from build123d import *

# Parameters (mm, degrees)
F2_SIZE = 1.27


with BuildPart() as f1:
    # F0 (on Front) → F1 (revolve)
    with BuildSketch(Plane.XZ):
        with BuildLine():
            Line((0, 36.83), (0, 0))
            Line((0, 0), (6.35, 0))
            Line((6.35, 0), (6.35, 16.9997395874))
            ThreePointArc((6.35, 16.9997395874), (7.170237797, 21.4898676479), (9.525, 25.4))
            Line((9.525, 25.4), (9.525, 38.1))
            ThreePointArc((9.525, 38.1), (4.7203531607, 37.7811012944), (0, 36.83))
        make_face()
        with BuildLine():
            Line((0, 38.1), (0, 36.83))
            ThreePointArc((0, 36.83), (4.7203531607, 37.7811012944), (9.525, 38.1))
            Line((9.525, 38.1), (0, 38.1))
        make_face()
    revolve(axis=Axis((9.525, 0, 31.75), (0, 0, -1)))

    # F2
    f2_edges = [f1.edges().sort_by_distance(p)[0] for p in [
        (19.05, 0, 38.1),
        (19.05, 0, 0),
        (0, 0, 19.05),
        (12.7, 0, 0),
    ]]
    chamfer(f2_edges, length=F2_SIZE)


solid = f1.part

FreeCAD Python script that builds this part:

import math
import FreeCAD as App
import Part
import Sketcher

V = App.Vector
Q = App.Units.Quantity


def edges_at(feature, points):
    """Names of the edges that pass closest to the given points."""
    edges = feature.Shape.Edges
    near = lambda p: min(range(len(edges)), key=lambda i: edges[i].distToShape(Part.Vertex(*p))[0])
    return sorted({f"Edge{near(p) + 1}" for p in points})

doc = App.newDocument("Part")
body = doc.addObject("PartDesign::Body", "Body")

# Sketch on XZ plane
sketch1 = body.newObject("Sketcher::SketchObject", "Sketch")
sketch1.AttachmentSupport = (doc.getObject("XZ_Plane"), [""])
sketch1.MapMode = "FlatFace"
sketch1.addGeometry([
    Part.LineSegment(V(0, 0, 0), V(6, 0, 0)),  # 0
    Part.LineSegment(V(6, 0, 0), V(6, 17, 0)),  # 1
    Part.ArcOfCircle(Part.Circle(V(19, 17, 0), V(0, 0, 1), 13), math.radians(139), math.radians(180)),  # 2
    Part.LineSegment(V(10, 25, 0), V(10, 38, 0)),  # 3
    Part.LineSegment(V(10, 38, 0), V(0, 38, 0)),  # 4
    Part.LineSegment(V(0, 38, 0), V(0, 0, 0)),  # 5
], False)
sketch1.addGeometry(Part.LineSegment(V(10, 38, 0), V(10, 0, 0)), True)  # axis
sketch1.addConstraint([
    Sketcher.Constraint("Coincident", 0, 2, 1, 1),
    Sketcher.Constraint("Tangent", 1, 2, 2, 2),
    Sketcher.Constraint("Coincident", 2, 1, 3, 1),
    Sketcher.Constraint("Coincident", 3, 2, 4, 1),
    Sketcher.Constraint("Coincident", 4, 2, 5, 1),
    Sketcher.Constraint("Coincident", 5, 2, 0, 1),
    Sketcher.Constraint("Horizontal", 0),
    Sketcher.Constraint("Vertical", 1),
    Sketcher.Constraint("Vertical", 3),
    Sketcher.Constraint("Horizontal", 4),
    Sketcher.Constraint("Vertical", 5),
    Sketcher.Constraint("Vertical", 6),
    Sketcher.Constraint("Coincident", 5, 2, -1, 1),
    Sketcher.Constraint("Coincident", 6, 1, 3, 2),
    Sketcher.Constraint("PointOnObject", 6, 2, -1),
    Sketcher.Constraint("Radius", 2, Q("0.5 in")),
    Sketcher.Constraint("DistanceY", 3, 1, 3, 2, Q("0.5 in")),
    Sketcher.Constraint("DistanceY", 5, 2, 5, 1, Q("1.5 in")),
    Sketcher.Constraint("DistanceX", 0, 1, 0, 2, Q("0.25 in")),
    Sketcher.Constraint("DistanceX", 4, 2, 4, 1, Q("0.375 in")),
])
revolution = body.newObject("PartDesign::Revolution", "Revolution")
revolution.Profile = sketch1
revolution.ReferenceAxis = (sketch1, ["Axis0"])
revolution.Angle = 360
doc.recompute()

chamfer = body.newObject("PartDesign::Chamfer", "Chamfer")
chamfer.Base = (revolution, edges_at(revolution, [
    (19.05, 0, 38.1),
    (19.05, 0, 0),
    (0, 0, 19.05),
    (12.7, 0, 0),
]))
chamfer.Size = Q("0.05 in")

doc.recompute()
